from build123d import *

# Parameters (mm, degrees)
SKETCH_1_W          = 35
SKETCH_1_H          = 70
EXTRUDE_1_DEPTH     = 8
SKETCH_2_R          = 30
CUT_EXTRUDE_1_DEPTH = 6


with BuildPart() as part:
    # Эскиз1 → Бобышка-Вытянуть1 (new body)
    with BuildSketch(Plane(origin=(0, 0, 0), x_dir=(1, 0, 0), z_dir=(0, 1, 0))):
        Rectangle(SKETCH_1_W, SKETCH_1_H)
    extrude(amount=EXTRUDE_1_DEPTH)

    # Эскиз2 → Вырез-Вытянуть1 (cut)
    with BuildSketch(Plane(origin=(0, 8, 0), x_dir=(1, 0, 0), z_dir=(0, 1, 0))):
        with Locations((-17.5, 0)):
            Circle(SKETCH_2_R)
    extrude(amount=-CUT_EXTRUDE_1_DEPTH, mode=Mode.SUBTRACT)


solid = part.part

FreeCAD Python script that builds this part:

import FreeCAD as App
import Part
import Sketcher

V = App.Vector
Q = App.Units.Quantity


def add_polygon(sketch, points):
    """Adds a closed chain of lines whose ends are joined by coincident constraints."""
    first, n = sketch.GeometryCount, len(points)
    for a, b in zip(points, points[1:] + points[:1]):
        sketch.addGeometry(Part.LineSegment(App.Vector(*a, 0), App.Vector(*b, 0)), False)
    for i in range(n):
        sketch.addConstraint(Sketcher.Constraint("Coincident", first + i, 2, first + (i + 1) % n, 1))

doc = App.newDocument("Part")
body = doc.addObject("PartDesign::Body", "Body")

# Sketch on XZ plane
sketch1 = body.newObject("Sketcher::SketchObject", "Sketch")
sketch1.AttachmentSupport = (doc.getObject("XZ_Plane"), [""])
sketch1.MapMode = "FlatFace"
add_polygon(sketch1, [(-18, -35), (-18, 35), (18, 35), (18, -35)])  # lines 0-3
sketch1.addConstraint(Sketcher.Constraint("Vertical", 0))
sketch1.addConstraint(Sketcher.Constraint("Horizontal", 1))
sketch1.addConstraint(Sketcher.Constraint("Vertical", 2))
sketch1.addConstraint(Sketcher.Constraint("Horizontal", 3))
sketch1.addConstraint(Sketcher.Constraint("Symmetric", 0, 2, 2, 2, -1, 1))
sketch1.addConstraint(Sketcher.Constraint("DistanceX", 1, 1, 1, 2, Q("35 mm")))
sketch1.addConstraint(Sketcher.Constraint("DistanceY", 0, 1, 0, 2, Q("70 mm")))
pad1 = body.newObject("PartDesign::Pad", "Pad")
pad1.Profile = sketch1
pad1.Length = 8
pad1.Reversed = True

# Sketch on XZ plane
sketch2 = body.newObject("Sketcher::SketchObject", "Sketch001")
sketch2.AttachmentSupport = (doc.getObject("XZ_Plane"), [""])
sketch2.MapMode = "FlatFace"
sketch2.AttachmentOffset = App.Placement(V(0, 0, -8), App.Rotation())
sketch2.addGeometry(Part.Circle(V(-18, 0, 0), V(0, 0, 1), 30), False)
sketch2.addConstraint(Sketcher.Constraint("PointOnObject", 0, 3, -1))
sketch2.addConstraint(Sketcher.Constraint("Diameter", 0, Q("60 mm")))
sketch2.addConstraint(Sketcher.Constraint("DistanceX", 0, 3, -1, 1, Q("17.5 mm")))
pocket1 = body.newObject("PartDesign::Pocket", "Pocket")
pocket1.Profile = sketch2
pocket1.Length = 6
pocket1.Reversed = True

doc.recompute()
